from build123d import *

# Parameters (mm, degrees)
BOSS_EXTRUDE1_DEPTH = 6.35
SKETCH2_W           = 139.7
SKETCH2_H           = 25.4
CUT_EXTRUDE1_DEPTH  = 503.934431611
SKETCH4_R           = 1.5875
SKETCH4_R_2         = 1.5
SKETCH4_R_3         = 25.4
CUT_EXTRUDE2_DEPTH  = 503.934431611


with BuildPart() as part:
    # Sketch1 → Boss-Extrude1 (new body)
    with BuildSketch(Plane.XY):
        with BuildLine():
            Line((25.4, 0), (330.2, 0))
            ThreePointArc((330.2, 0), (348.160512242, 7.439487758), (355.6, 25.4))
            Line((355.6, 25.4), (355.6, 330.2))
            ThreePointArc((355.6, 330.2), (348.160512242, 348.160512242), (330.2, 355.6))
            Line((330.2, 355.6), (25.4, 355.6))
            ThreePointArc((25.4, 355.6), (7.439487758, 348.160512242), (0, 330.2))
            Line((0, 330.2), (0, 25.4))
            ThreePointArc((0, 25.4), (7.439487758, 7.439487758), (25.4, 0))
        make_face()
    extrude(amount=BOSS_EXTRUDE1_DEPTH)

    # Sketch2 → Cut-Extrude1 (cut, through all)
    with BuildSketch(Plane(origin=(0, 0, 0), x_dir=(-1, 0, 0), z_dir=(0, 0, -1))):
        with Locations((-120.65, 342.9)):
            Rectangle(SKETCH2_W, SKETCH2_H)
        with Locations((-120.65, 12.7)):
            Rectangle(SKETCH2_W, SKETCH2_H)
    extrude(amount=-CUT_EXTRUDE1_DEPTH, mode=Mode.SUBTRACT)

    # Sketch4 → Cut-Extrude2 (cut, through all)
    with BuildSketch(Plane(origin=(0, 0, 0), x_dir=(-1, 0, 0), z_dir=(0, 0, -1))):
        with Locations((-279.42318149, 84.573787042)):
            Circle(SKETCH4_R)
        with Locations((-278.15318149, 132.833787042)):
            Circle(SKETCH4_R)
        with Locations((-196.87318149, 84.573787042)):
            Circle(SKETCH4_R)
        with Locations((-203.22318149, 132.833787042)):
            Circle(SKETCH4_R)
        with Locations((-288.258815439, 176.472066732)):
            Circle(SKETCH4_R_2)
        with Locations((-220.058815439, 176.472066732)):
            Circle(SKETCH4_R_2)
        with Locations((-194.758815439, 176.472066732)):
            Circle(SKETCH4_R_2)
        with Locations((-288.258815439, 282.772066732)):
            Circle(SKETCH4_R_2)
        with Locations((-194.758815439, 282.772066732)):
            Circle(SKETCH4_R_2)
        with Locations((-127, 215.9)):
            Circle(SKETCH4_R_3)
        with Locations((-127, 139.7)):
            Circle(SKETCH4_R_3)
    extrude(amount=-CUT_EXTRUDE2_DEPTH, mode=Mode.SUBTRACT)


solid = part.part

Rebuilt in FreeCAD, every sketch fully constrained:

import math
import FreeCAD as App
import Part
import Sketcher

V = App.Vector
Q = App.Units.Quantity


def add_polygon(sketch, points):
    """Adds a closed chain of lines whose ends are joined by coincident constraints."""
    first, n = sketch.GeometryCount, len(points)
    for a, b in zip(points, points[1:] + points[:1]):
        sketch.addGeometry(Part.LineSegment(App.Vector(*a, 0), App.Vector(*b, 0)), False)
    for i in range(n):
        sketch.addConstraint(Sketcher.Constraint("Coincident", first + i, 2, first + (i + 1) % n, 1))

doc = App.newDocument("Part")
body = doc.addObject("PartDesign::Body", "Body")

# Sketch on XY plane
sketch1 = doc.addObject("Sketcher::SketchObject", "Sketch")
body.addObject(sketch1)
sketch1.AttachmentSupport = (doc.XY_Plane, [""])
sketch1.MapMode = "FlatFace"
sketch1.addGeometry([
    Part.LineSegment(V(25.4, 0, 0), V(330.2, 0, 0)),  # 0
    Part.ArcOfCircle(Part.Circle(V(330.2, 25.4, 0), V(0, 0, 1), 25.4), math.radians(-90), math.radians(0)),  # 1
    Part.LineSegment(V(355.6, 25.4, 0), V(355.6, 330.2, 0)),  # 2
    Part.ArcOfCircle(Part.Circle(V(330.2, 330.2, 0), V(0, 0, 1), 25.4), math.radians(0), math.radians(90)),  # 3
    Part.LineSegment(V(330.2, 355.6, 0), V(25.4, 355.6, 0)),  # 4
    Part.ArcOfCircle(Part.Circle(V(25.4, 330.2, 0), V(0, 0, 1), 25.4), math.radians(90), math.radians(180)),  # 5
    Part.LineSegment(V(0, 330.2, 0), V(0, 25.4, 0)),  # 6
    Part.ArcOfCircle(Part.Circle(V(25.4, 25.4, 0), V(0, 0, 1), 25.4), math.radians(180), math.radians(270)),  # 7
], False)
sketch1.addConstraint([
    Sketcher.Constraint("Tangent", 0, 2, 1, 1),
    Sketcher.Constraint("Tangent", 1, 2, 2, 1),
    Sketcher.Constraint("Tangent", 2, 2, 3, 1),
    Sketcher.Constraint("Tangent", 3, 2, 4, 1),
    Sketcher.Constraint("Tangent", 4, 2, 5, 1),
    Sketcher.Constraint("Tangent", 5, 2, 6, 1),
    Sketcher.Constraint("Tangent", 6, 2, 7, 1),
    Sketcher.Constraint("Tangent", 7, 2, 0, 1),
    Sketcher.Constraint("Horizontal", 0),
    Sketcher.Constraint("Vertical", 2),
    Sketcher.Constraint("Horizontal", 4),
    Sketcher.Constraint("Vertical", 6),
    Sketcher.Constraint("Equal", 1, 3),
    Sketcher.Constraint("Equal", 3, 5),
    Sketcher.Constraint("Equal", 5, 7),
    Sketcher.Constraint("PointOnObject", 0, 2, -1),
    Sketcher.Constraint("PointOnObject", 5, 2, -2),
    Sketcher.Constraint("Equal", 4, 2),
    Sketcher.Constraint("Radius", 1, Q("1 in")),
    Sketcher.Constraint("DistanceX", 0, 1, 0, 2, Q("12 in")),
])
pad1 = doc.addObject("PartDesign::Pad", "Pad")
body.addObject(pad1)
pad1.Profile = sketch1
pad1.Length = Q("0.25 in")

# Sketch on XY plane
sketch2 = doc.addObject("Sketcher::SketchObject", "Sketch001")
body.addObject(sketch2)
sketch2.AttachmentSupport = (doc.XY_Plane, [""])
sketch2.MapMode = "FlatFace"
add_polygon(sketch2, [(190.5, 355.6), (190.5, 330.2), (50.8, 330.2), (50.8, 355.6)])  # lines 0-3
add_polygon(sketch2, [(190.5, 25.4), (190.5, 0), (50.8, 0), (50.8, 25.4)])  # lines 4-7
sketch2.addConstraint([
    Sketcher.Constraint("Vertical", 0),
    Sketcher.Constraint("Horizontal", 1),
    Sketcher.Constraint("Vertical", 2),
    Sketcher.Constraint("Horizontal", 3),
    Sketcher.Constraint("Vertical", 4),
    Sketcher.Constraint("Horizontal", 5),
    Sketcher.Constraint("Vertical", 6),
    Sketcher.Constraint("Horizontal", 7),
    Sketcher.Constraint("PointOnObject", 4, 2, -1),
    Sketcher.Constraint("Vertical", 3, 2, 4, 2),
    Sketcher.Constraint("Vertical", 2, 2, 5, 2),
    Sketcher.Constraint("Equal", 2, 4),
    Sketcher.Constraint("DistanceY", 0, 2, 0, 1, Q("1 in")),
    Sketcher.Constraint("DistanceX", 1, 2, 1, 1, Q("5.5 in")),
    Sketcher.Constraint("DistanceY", -1, 1, 0, 2, Q("13 in")),
    Sketcher.Constraint("DistanceX", -1, 1, 1, 2, Q("2 in")),
])
pocket1 = doc.addObject("PartDesign::Pocket", "Pocket")
body.addObject(pocket1)
pocket1.Profile = sketch2
pocket1.Type = "ThroughAll"
pocket1.Reversed = True

# Sketch on XY plane
sketch3 = doc.addObject("Sketcher::SketchObject", "Sketch002")
body.addObject(sketch3)
sketch3.AttachmentSupport = (doc.XY_Plane, [""])
sketch3.MapMode = "FlatFace"
sketch3.addGeometry([
    Part.Circle(V(279.423181, 84.573787, 0), V(0, 0, 1), 1.5875),  # 0
    Part.Circle(V(278.153181, 132.833787, 0), V(0, 0, 1), 1.5875),  # 1
    Part.Circle(V(196.873181, 84.573787, 0), V(0, 0, 1), 1.5875),  # 2
    Part.Circle(V(203.223181, 132.833787, 0), V(0, 0, 1), 1.5875),  # 3
    Part.Circle(V(288.258815, 176.472067, 0), V(0, 0, 1), 1.5),  # 4
    Part.Circle(V(220.058815, 176.472067, 0), V(0, 0, 1), 1.5),  # 5
    Part.Circle(V(194.758815, 176.472067, 0), V(0, 0, 1), 1.5),  # 6
    Part.Circle(V(288.258815, 282.772067, 0), V(0, 0, 1), 1.5),  # 7
    Part.Circle(V(194.758815, 282.772067, 0), V(0, 0, 1), 1.5),  # 8
    Part.Circle(V(127, 215.9, 0), V(0, 0, 1), 25.4),  # 9
    Part.Circle(V(127, 139.7, 0), V(0, 0, 1), 25.4),  # 10
], False)
sketch3.addConstraint([
    Sketcher.Constraint("Equal", 0, 1),
    Sketcher.Constraint("Equal", 1, 2),
    Sketcher.Constraint("Equal", 2, 3),
    Sketcher.Constraint("Equal", 4, 5),
    Sketcher.Constraint("Equal", 5, 6),
    Sketcher.Constraint("Equal", 6, 7),
    Sketcher.Constraint("Equal", 7, 8),
    Sketcher.Constraint("Equal", 9, 10),
    Sketcher.Constraint("Horizontal", 0, 3, 2, 3),
    Sketcher.Constraint("Horizontal", 1, 3, 3, 3),
    Sketcher.Constraint("Horizontal", 4, 3, 5, 3),
    Sketcher.Constraint("Horizontal", 5, 3, 6, 3),
    Sketcher.Constraint("Horizontal", 7, 3, 8, 3),
    Sketcher.Constraint("Vertical", 4, 3, 7, 3),
    Sketcher.Constraint("Vertical", 6, 3, 8, 3),
    Sketcher.Constraint("Vertical", 9, 3, 10, 3),
    Sketcher.Constraint("Diameter", 9, Q("2 in")),
    Sketcher.Constraint("Diameter", 0, Q("0.125 in")),
    Sketcher.Constraint("DistanceX", -1, 1, 9, 3, Q("5 in")),
    Sketcher.Constraint("DistanceX", 3, 3, 0, 3, Q("3 in")),
    Sketcher.Constraint("DistanceY", 10, 3, 9, 3, Q("3 in")),
    Sketcher.Constraint("DistanceY", -1, 1, 9, 3, Q("8.5 in")),
    Sketcher.Constraint("DistanceY", 0, 3, 1, 3, Q("1.9 in")),
    Sketcher.Constraint("DistanceX", 2, 3, 1, 3, Q("3.2 in")),
    Sketcher.Constraint("Diameter", 4, 3.0),
    Sketcher.Constraint("DistanceX", 1, 3, 0, 3, Q("0.05 in")),
    Sketcher.Constraint("DistanceX", 5, 3, 4, 3, 68.2),
    Sketcher.Constraint("DistanceX", 6, 3, 5, 3, 25.3),
    Sketcher.Constraint("DistanceY", 4, 3, 7, 3, 106.3),
    Sketcher.Constraint("DistanceX", -1, 1, 0, 3, 279.423181),
    Sketcher.Constraint("DistanceY", 1, 3, 4, 3, 43.63828),
    Sketcher.Constraint("DistanceY", -1, 1, 0, 3, 84.573787),
    Sketcher.Constraint("DistanceX", -1, 1, 4, 3, 288.258815),
])
pocket2 = doc.addObject("PartDesign::Pocket", "Pocket001")
body.addObject(pocket2)
pocket2.Profile = sketch3
pocket2.Type = "ThroughAll"
pocket2.Reversed = True

doc.recompute()
